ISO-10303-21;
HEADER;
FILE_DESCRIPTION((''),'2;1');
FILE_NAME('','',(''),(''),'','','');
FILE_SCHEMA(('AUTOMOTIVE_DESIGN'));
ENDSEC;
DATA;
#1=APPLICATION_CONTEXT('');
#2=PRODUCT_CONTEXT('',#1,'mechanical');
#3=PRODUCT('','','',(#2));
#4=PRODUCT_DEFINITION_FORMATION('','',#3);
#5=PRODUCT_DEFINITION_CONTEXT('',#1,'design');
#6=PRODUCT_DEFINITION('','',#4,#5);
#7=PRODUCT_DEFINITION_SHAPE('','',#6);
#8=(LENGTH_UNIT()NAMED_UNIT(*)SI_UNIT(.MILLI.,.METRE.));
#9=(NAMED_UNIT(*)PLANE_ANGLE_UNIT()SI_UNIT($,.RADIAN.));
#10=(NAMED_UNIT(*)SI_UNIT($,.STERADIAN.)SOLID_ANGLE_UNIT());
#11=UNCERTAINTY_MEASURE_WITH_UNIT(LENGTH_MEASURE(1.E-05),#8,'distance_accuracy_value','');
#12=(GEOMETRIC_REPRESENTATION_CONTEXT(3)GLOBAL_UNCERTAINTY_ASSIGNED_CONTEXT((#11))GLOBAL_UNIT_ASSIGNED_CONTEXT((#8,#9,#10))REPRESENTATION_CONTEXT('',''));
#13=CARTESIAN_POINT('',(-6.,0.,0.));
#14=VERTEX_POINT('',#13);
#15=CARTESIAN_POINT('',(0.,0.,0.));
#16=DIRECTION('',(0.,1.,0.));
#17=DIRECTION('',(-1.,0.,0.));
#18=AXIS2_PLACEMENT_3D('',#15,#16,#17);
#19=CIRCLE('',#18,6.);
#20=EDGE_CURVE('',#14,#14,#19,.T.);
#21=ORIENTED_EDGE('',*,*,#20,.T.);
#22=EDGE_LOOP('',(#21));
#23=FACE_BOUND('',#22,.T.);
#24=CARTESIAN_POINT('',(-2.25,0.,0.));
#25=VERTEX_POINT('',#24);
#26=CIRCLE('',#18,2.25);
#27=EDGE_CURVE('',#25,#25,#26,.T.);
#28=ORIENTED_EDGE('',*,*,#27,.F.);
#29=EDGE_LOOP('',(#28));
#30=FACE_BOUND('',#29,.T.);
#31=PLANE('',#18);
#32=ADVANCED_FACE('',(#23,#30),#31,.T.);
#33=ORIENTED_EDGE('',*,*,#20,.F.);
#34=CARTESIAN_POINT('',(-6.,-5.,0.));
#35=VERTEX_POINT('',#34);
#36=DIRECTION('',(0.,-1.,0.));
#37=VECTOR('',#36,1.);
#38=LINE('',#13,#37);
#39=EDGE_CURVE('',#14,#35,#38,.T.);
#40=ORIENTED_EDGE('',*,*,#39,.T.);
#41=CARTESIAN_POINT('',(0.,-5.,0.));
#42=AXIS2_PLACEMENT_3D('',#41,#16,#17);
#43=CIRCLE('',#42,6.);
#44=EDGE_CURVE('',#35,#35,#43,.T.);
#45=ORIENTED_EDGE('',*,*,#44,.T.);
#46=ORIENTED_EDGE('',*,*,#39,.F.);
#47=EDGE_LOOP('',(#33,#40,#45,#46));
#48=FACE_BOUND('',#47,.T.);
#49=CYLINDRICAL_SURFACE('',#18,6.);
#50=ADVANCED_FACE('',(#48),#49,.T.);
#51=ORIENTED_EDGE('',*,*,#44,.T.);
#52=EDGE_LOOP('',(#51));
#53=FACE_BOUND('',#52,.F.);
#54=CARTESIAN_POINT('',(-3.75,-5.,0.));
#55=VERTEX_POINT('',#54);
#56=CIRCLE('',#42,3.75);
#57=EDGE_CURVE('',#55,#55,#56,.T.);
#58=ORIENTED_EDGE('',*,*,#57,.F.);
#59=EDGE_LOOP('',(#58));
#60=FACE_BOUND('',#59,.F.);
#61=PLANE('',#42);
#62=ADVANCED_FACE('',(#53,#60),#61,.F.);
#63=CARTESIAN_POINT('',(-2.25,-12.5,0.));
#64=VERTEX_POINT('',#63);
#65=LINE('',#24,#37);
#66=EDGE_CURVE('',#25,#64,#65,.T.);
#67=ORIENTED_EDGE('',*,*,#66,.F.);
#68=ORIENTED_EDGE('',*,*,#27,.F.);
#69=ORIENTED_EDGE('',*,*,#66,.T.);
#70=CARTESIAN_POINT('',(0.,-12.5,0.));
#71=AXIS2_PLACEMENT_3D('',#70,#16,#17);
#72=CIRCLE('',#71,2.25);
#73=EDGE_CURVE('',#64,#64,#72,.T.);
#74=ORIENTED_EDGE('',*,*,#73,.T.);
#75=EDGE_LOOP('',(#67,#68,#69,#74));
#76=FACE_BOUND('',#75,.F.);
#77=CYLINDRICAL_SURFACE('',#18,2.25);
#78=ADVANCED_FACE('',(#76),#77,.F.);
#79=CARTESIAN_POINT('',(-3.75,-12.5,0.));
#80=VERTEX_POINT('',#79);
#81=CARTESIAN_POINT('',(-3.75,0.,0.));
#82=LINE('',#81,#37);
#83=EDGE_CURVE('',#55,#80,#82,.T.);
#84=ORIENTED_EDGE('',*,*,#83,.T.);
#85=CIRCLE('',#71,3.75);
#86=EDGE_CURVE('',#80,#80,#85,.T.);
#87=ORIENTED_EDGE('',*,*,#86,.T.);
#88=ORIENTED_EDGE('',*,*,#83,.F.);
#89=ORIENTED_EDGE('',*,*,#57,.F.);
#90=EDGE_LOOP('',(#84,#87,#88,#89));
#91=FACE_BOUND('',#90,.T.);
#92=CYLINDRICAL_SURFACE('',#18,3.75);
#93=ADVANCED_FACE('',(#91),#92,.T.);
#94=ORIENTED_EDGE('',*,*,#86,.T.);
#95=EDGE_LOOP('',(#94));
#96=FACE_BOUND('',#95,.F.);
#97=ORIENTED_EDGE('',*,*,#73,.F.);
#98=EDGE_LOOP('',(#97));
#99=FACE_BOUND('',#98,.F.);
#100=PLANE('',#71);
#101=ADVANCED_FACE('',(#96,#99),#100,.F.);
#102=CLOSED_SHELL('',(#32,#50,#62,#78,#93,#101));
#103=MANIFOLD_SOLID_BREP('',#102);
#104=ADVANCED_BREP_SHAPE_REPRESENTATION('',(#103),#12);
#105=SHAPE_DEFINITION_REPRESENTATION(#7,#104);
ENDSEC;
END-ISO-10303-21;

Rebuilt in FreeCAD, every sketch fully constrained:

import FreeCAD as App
import Part
import Sketcher

doc = App.newDocument("Part")
body = doc.addObject("PartDesign::Body", "Body")

# Sketch on XZ plane
sketch1 = body.newObject("Sketcher::SketchObject", "Sketch")
sketch1.AttachmentSupport = (doc.getObject("XZ_Plane"), [""])
sketch1.MapMode = "FlatFace"
sketch1.addGeometry([
    Part.Circle(App.Vector(0, 0, 0), App.Vector(0, 0, 1), 3.8),
    Part.Circle(App.Vector(0, 0, 0), App.Vector(0, 0, 1), 2.2),
], False)
sketch1.addConstraint([
    Sketcher.Constraint("Coincident", 0, 3, -1, 1),
    Sketcher.Constraint("Coincident", 1, 3, -1, 1),
    Sketcher.Constraint("Diameter", 0, 7.5),
    Sketcher.Constraint("Diameter", 1, 4.5),
])
pad1 = body.newObject("PartDesign::Pad", "Pad")
pad1.Profile = sketch1
pad1.Length = 12.5

# Sketch on XZ plane
sketch2 = body.newObject("Sketcher::SketchObject", "Sketch001")
sketch2.AttachmentSupport = (doc.getObject("XZ_Plane"), [""])
sketch2.MapMode = "FlatFace"
sketch2.addGeometry([
    Part.Circle(App.Vector(0, 0, 0), App.Vector(0, 0, 1), 6),
    Part.Circle(App.Vector(0, 0, 0), App.Vector(0, 0, 1), 3.8),
], False)
sketch2.addConstraint([
    Sketcher.Constraint("Coincident", 0, 3, -1, 1),
    Sketcher.Constraint("Coincident", 1, 3, -1, 1),
    Sketcher.Constraint("Diameter", 0, 12.0),
    Sketcher.Constraint("Diameter", 1, 7.5),
])
pad2 = body.newObject("PartDesign::Pad", "Pad001")
pad2.Profile = sketch2
pad2.Length = 5

doc.recompute()
